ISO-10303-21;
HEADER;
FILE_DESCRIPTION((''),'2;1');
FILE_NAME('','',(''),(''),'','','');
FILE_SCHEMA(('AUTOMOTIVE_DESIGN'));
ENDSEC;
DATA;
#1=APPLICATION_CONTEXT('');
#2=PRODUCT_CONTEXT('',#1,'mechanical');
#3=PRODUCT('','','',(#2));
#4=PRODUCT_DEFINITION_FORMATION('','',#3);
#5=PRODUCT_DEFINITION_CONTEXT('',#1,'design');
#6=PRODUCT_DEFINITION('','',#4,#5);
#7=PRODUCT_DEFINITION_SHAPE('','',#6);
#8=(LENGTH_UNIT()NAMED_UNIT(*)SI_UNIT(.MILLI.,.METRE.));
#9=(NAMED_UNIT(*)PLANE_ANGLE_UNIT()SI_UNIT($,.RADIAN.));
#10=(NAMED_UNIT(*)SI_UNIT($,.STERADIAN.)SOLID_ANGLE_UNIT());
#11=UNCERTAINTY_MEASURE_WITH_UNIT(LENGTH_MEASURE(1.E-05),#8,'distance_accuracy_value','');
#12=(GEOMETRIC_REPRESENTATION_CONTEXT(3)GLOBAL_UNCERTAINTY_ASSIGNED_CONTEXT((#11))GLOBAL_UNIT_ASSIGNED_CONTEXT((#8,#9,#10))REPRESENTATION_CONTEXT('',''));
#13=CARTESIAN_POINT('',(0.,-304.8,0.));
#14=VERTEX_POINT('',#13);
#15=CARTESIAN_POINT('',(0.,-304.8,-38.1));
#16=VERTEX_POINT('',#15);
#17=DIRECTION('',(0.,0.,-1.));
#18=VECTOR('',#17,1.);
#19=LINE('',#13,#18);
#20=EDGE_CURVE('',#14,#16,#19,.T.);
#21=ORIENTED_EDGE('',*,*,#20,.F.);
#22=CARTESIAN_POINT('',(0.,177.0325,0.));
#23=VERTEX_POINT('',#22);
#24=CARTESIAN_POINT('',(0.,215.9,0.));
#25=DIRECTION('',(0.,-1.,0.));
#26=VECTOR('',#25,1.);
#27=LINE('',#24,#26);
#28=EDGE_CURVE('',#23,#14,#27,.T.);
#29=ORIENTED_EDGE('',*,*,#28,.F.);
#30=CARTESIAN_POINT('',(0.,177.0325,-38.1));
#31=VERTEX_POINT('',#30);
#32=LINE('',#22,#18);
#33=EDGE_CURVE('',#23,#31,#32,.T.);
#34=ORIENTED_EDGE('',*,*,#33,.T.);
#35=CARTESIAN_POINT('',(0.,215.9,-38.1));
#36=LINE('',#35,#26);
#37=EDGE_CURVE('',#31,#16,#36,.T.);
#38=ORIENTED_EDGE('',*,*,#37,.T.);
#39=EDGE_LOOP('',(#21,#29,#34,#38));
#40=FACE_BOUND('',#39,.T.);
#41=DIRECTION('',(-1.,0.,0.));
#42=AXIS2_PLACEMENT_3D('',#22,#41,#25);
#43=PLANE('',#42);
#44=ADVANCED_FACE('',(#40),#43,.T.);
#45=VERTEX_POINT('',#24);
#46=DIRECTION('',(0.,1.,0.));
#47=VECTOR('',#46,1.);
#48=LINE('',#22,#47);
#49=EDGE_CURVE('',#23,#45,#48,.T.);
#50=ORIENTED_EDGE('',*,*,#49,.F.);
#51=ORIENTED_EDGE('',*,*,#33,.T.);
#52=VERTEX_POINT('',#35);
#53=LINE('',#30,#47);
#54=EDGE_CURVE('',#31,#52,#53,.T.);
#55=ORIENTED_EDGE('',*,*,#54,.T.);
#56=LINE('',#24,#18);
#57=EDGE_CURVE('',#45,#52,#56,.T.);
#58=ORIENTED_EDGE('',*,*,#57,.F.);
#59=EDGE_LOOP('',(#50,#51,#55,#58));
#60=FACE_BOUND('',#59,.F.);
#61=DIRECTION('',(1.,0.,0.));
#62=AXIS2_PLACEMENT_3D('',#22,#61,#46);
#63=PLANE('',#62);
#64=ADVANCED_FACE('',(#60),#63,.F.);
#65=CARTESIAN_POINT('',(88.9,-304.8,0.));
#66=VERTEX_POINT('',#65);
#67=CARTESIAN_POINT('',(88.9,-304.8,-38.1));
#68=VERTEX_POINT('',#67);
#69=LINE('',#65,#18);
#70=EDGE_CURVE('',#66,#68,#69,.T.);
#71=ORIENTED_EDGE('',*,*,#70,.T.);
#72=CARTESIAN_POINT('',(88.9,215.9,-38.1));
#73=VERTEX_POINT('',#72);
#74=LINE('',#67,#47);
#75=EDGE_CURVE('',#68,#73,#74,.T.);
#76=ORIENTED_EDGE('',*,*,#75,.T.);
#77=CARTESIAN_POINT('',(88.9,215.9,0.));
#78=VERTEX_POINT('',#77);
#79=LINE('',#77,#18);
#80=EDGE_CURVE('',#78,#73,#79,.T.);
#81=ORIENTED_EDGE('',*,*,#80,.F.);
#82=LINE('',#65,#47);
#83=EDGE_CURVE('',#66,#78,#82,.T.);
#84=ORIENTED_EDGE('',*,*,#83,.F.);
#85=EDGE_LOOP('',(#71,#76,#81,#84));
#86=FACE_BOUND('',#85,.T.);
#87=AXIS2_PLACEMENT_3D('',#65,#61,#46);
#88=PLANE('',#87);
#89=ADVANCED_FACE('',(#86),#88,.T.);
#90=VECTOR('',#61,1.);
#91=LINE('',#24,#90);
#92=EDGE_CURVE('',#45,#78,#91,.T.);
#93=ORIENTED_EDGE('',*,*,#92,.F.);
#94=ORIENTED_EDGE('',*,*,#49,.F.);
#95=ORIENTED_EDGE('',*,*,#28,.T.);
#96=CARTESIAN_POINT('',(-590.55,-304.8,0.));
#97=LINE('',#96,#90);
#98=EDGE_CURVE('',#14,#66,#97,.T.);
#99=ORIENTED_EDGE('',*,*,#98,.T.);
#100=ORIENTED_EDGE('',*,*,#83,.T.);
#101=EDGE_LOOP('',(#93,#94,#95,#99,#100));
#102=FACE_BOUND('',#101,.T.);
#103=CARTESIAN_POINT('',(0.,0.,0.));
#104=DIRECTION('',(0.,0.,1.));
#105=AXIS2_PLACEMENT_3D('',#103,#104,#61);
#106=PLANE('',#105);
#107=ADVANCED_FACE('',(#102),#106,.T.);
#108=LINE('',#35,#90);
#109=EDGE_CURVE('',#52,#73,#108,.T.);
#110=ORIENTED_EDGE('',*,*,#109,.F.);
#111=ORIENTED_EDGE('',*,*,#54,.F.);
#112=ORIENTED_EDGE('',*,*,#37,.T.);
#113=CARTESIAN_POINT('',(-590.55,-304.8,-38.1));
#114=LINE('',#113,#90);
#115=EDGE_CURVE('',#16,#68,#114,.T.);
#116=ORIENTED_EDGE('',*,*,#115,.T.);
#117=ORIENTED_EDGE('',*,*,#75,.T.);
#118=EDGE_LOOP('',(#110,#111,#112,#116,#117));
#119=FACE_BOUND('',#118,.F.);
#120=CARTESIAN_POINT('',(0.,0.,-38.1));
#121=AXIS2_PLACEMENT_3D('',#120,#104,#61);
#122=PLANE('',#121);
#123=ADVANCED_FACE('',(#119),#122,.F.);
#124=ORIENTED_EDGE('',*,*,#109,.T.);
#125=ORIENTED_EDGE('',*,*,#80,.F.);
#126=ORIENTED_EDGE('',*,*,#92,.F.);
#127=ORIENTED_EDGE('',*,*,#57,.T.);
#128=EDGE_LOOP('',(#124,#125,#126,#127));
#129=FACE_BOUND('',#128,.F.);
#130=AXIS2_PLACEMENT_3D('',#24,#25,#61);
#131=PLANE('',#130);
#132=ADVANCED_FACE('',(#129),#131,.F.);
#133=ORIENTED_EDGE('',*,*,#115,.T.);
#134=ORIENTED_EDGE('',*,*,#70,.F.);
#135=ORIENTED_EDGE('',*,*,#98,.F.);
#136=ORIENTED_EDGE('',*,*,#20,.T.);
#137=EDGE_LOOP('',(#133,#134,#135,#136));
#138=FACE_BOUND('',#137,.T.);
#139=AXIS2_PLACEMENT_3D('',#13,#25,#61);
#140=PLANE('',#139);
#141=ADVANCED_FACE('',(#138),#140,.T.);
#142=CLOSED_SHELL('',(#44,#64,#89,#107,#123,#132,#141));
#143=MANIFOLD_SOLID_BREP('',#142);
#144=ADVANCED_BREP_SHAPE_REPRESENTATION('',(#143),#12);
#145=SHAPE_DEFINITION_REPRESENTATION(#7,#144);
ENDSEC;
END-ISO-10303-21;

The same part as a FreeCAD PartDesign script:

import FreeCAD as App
import Part
import Sketcher

V = App.Vector
Q = App.Units.Quantity

doc = App.newDocument("Part")
body = doc.addObject("PartDesign::Body", "Body")

# Sketch on XY plane
sketch1 = doc.addObject("Sketcher::SketchObject", "Sketch")
body.addObject(sketch1)
sketch1.AttachmentSupport = (doc.XY_Plane, [""])
sketch1.MapMode = "FlatFace"
sketch1.addGeometry(Part.LineSegment(V(88.9, 215.9, 0), V(0, 215.9, 0)), False)
sketch1.addGeometry(Part.LineSegment(V(0, 215.9, 0), V(0, -304.8, 0)), False)
sketch1.addGeometry(Part.LineSegment(V(0, -304.8, 0), V(88.9, -304.8, 0)), False)
sketch1.addGeometry(Part.LineSegment(V(88.9, -304.8, 0), V(88.9, 215.9, 0)), False)
sketch1.addConstraint(Sketcher.Constraint("Coincident", 0, 2, 1, 1))
sketch1.addConstraint(Sketcher.Constraint("Coincident", 1, 2, 2, 1))
sketch1.addConstraint(Sketcher.Constraint("Coincident", 2, 2, 3, 1))
sketch1.addConstraint(Sketcher.Constraint("Coincident", 3, 2, 0, 1))
sketch1.addConstraint(Sketcher.Constraint("Horizontal", 0))
sketch1.addConstraint(Sketcher.Constraint("Vertical", 1))
sketch1.addConstraint(Sketcher.Constraint("Horizontal", 2))
sketch1.addConstraint(Sketcher.Constraint("Vertical", 3))
sketch1.addConstraint(Sketcher.Constraint("PointOnObject", 0, 2, -2))
sketch1.addConstraint(Sketcher.Constraint("DistanceX", 0, 2, 0, 1, Q("3.5 in")))
sketch1.addConstraint(Sketcher.Constraint("DistanceY", 1, 2, 1, 1, Q("20.5 in")))
sketch1.addConstraint(Sketcher.Constraint("DistanceY", 1, 2, -1, 1, Q("12 in")))
pad1 = doc.addObject("PartDesign::Pad", "Pad")
body.addObject(pad1)
pad1.Profile = sketch1
pad1.Length = Q("1.5 in")
pad1.Reversed = True

doc.recompute()
